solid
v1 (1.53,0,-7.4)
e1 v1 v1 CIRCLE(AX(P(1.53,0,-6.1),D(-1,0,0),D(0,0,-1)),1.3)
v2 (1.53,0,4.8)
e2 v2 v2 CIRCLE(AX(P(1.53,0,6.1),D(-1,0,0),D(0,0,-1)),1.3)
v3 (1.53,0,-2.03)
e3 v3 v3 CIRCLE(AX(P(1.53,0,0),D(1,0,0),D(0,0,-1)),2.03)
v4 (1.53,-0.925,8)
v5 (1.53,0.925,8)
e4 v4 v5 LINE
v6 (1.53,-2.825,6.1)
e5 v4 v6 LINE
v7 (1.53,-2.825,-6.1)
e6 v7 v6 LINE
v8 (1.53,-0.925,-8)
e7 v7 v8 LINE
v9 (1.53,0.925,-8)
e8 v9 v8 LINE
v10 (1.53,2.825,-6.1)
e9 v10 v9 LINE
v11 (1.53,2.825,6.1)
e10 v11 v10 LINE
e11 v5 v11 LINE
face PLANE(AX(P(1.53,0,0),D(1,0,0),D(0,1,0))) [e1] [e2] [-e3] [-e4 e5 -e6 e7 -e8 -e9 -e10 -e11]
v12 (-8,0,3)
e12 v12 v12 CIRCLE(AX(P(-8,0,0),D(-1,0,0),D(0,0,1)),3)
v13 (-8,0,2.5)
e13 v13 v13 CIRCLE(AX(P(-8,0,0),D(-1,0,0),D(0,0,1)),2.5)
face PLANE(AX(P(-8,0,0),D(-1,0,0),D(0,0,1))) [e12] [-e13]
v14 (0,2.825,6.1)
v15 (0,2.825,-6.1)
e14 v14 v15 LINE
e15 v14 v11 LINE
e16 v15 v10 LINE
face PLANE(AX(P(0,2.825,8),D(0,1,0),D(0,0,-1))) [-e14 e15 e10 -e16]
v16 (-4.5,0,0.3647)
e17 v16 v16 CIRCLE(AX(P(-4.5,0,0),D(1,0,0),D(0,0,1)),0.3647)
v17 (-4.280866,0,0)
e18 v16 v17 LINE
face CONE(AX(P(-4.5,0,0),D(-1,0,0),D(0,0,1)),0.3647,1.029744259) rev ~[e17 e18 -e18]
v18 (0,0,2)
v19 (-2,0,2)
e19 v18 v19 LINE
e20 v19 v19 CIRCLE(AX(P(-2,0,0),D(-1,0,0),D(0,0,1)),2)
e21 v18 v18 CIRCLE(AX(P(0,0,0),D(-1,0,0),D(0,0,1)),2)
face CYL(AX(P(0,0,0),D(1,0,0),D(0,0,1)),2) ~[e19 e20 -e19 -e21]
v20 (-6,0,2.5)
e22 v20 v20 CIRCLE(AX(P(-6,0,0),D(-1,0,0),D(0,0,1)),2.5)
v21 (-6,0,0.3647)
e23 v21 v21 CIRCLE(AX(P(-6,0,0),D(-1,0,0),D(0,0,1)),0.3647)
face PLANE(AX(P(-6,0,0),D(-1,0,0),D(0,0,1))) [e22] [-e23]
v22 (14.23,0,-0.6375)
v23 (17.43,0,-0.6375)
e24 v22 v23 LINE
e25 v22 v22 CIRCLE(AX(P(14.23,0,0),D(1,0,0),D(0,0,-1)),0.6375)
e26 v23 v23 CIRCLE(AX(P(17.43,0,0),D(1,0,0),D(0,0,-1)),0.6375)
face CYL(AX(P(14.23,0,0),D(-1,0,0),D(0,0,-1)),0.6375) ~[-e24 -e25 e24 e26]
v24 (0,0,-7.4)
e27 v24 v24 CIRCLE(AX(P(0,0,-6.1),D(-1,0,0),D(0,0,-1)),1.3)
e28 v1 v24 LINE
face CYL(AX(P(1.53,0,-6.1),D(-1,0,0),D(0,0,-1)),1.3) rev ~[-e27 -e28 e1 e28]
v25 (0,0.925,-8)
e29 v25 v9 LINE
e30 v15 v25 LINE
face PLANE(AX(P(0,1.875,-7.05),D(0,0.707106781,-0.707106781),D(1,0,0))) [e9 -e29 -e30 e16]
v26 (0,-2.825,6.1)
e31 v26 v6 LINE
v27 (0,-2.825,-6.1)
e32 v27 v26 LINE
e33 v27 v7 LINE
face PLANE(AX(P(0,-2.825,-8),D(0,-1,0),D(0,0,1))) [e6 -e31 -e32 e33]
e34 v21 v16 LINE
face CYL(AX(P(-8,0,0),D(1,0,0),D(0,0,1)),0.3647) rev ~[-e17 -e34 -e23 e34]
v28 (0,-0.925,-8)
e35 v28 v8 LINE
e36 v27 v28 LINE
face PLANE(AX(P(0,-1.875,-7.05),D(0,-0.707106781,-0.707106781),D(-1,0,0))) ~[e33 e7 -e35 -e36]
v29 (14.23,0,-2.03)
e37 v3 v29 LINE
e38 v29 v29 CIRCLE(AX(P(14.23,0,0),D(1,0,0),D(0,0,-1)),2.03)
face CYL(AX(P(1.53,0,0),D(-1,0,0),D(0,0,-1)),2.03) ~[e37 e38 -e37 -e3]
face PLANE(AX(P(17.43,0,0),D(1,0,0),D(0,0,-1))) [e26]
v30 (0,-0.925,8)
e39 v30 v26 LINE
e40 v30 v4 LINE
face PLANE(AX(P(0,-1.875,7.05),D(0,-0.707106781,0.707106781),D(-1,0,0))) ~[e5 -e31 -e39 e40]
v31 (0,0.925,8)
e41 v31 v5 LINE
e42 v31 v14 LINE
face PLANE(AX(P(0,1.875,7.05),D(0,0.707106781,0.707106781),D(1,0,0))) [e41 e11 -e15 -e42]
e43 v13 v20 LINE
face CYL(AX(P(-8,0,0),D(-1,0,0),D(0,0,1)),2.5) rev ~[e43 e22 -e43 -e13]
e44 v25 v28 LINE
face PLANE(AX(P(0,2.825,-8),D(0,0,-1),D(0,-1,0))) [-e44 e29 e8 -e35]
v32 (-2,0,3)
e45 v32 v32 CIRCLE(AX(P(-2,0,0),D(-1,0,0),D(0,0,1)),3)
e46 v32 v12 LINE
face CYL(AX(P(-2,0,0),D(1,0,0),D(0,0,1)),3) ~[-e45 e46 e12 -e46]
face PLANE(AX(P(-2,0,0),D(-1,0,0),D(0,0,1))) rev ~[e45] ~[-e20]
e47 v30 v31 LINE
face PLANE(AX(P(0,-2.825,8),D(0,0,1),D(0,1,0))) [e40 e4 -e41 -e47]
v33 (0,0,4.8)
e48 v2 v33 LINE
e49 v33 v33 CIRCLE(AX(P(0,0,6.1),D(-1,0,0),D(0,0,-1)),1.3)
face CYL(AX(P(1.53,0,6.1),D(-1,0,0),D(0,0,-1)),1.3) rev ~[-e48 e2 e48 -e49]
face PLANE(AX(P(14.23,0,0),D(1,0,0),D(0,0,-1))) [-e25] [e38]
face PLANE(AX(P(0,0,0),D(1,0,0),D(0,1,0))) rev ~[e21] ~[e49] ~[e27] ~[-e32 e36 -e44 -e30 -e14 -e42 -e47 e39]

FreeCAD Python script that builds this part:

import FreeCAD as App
import Part
import Sketcher


def edges_at(feature, points):
    """Names of the edges that pass closest to the given points."""
    edges = feature.Shape.Edges
    near = lambda p: min(range(len(edges)), key=lambda i: edges[i].distToShape(Part.Vertex(*p))[0])
    return sorted({f"Edge{near(p) + 1}" for p in points})


def add_polygon(sketch, points):
    """Adds a closed chain of lines whose ends are joined by coincident constraints."""
    first, n = sketch.GeometryCount, len(points)
    for a, b in zip(points, points[1:] + points[:1]):
        sketch.addGeometry(Part.LineSegment(App.Vector(*a, 0), App.Vector(*b, 0)), False)
    for i in range(n):
        sketch.addConstraint(Sketcher.Constraint("Coincident", first + i, 2, first + (i + 1) % n, 1))

doc = App.newDocument("Part")
body = doc.addObject("PartDesign::Body", "Body")

sketch1 = body.newObject("Sketcher::SketchObject", "Sketch")
sketch1.AttachmentSupport = (doc.getObject("YZ_Plane"), [""])
sketch1.MapMode = "FlatFace"
add_polygon(sketch1, [(3, 8), (-3, 8), (-3, -8), (3, -8)])
sketch1.addConstraint([
    Sketcher.Constraint("Horizontal", 0),
    Sketcher.Constraint("Vertical", 1),
    Sketcher.Constraint("Horizontal", 2),
    Sketcher.Constraint("Vertical", 3),
    Sketcher.Constraint("Symmetric", 0, 2, 2, 2, -1, 1),
    Sketcher.Constraint("DistanceY", 1, 2, 1, 1, 16.0),
    Sketcher.Constraint("DistanceX", 0, 2, 0, 1, 5.65),
])
pad1 = body.newObject("PartDesign::Pad", "Pad")
pad1.Profile = sketch1
pad1.Length = 1.53

sketch2 = body.newObject("Sketcher::SketchObject", "Sketch001")
sketch2.AttachmentSupport = (doc.getObject("YZ_Plane"), [""])
sketch2.MapMode = "FlatFace"
sketch2.AttachmentOffset = App.Placement(App.Vector(0, 0, 1.53), App.Rotation())
sketch2.addGeometry([
    Part.Circle(App.Vector(0, -6.1, 0), App.Vector(0, 0, 1), 1.3),
    Part.Circle(App.Vector(0, 6.1, 0), App.Vector(0, 0, 1), 1.3),
], False)
sketch2.addConstraint([
    Sketcher.Constraint("Equal", 0, 1),
    Sketcher.Constraint("Symmetric", 0, 3, 1, 3, -1, 1),
    Sketcher.Constraint("PointOnObject", 0, 3, -2),
    Sketcher.Constraint("Diameter", 0, 2.6),
    Sketcher.Constraint("DistanceY", 0, 3, -1, 1, 6.1),
])
doc.recompute()
hole = body.newObject("PartDesign::Hole", "Hole")
hole.Profile = sketch2
hole.ThreadType = "None"
hole.Diameter = 2.6
hole.DepthType = "ThroughAll"
doc.recompute()

chamfer = body.newObject("PartDesign::Chamfer", "Chamfer")
chamfer.Base = (hole, edges_at(hole, [
    (0.765, 2.825, 8),
    (0.765, 2.825, -8),
    (0.765, -2.825, 8),
    (0.765, -2.825, -8),
]))
chamfer.Size = 1.9

sketch3 = body.newObject("Sketcher::SketchObject", "Sketch002")
sketch3.AttachmentSupport = (doc.getObject("YZ_Plane"), [""])
sketch3.MapMode = "FlatFace"
sketch3.AttachmentOffset = App.Placement(App.Vector(0, 0, 1.53), App.Rotation())
sketch3.addGeometry(Part.Circle(App.Vector(0, 0, 0), App.Vector(0, 0, 1), 2), False)
sketch3.addConstraint([
    Sketcher.Constraint("Coincident", 0, 3, -1, 1),
    Sketcher.Constraint("Diameter", 0, 4.06),
])
pad2 = body.newObject("PartDesign::Pad", "Pad001")
pad2.Profile = sketch3
pad2.Length = 12.7

sketch4 = body.newObject("Sketcher::SketchObject", "Sketch003")
sketch4.AttachmentSupport = (doc.getObject("YZ_Plane"), [""])
sketch4.MapMode = "FlatFace"
sketch4.AttachmentOffset = App.Placement(App.Vector(0, 0, 14.23), App.Rotation())
sketch4.addGeometry(Part.Circle(App.Vector(0, 0, 0), App.Vector(0, 0, 1), 0.6), False)
sketch4.addConstraint([
    Sketcher.Constraint("Coincident", 0, 3, -1, 1),
    Sketcher.Constraint("Diameter", 0, 1.275),
])
pad3 = body.newObject("PartDesign::Pad", "Pad002")
pad3.Profile = sketch4
pad3.Length = 3.2

sketch5 = body.newObject("Sketcher::SketchObject", "Sketch004")
sketch5.AttachmentSupport = (doc.getObject("YZ_Plane"), [""])
sketch5.MapMode = "FlatFace"
sketch5.addGeometry(Part.Circle(App.Vector(0, 0, 0), App.Vector(0, 0, 1), 2), False)
sketch5.addConstraint([
    Sketcher.Constraint("Coincident", 0, 3, -1, 1),
    Sketcher.Constraint("Diameter", 0, 4.0),
])
pad4 = body.newObject("PartDesign::Pad", "Pad003")
pad4.Profile = sketch5
pad4.Length = 2
pad4.Reversed = True

sketch6 = body.newObject("Sketcher::SketchObject", "Sketch005")
sketch6.AttachmentSupport = (doc.getObject("YZ_Plane"), [""])
sketch6.MapMode = "FlatFace"
sketch6.AttachmentOffset = App.Placement(App.Vector(0, 0, -2), App.Rotation())
sketch6.addGeometry(Part.Circle(App.Vector(0, 0, 0), App.Vector(0, 0, 1), 3), False)
sketch6.addConstraint([
    Sketcher.Constraint("Coincident", 0, 3, -1, 1),
    Sketcher.Constraint("Diameter", 0, 6.0),
])
pad5 = body.newObject("PartDesign::Pad", "Pad004")
pad5.Profile = sketch6
pad5.Length = 6
pad5.Reversed = True

sketch7 = body.newObject("Sketcher::SketchObject", "Sketch006")
sketch7.AttachmentSupport = (doc.getObject("YZ_Plane"), [""])
sketch7.MapMode = "FlatFace"
sketch7.AttachmentOffset = App.Placement(App.Vector(0, 0, -8), App.Rotation())
sketch7.addGeometry(Part.Circle(App.Vector(0, 0, 0), App.Vector(0, 0, 1), 0.36), False)
sketch7.addConstraint([
    Sketcher.Constraint("Coincident", 0, 3, -1, 1),
    Sketcher.Constraint("Diameter", 0, 0.7294),
])
doc.recompute()
hole2 = body.newObject("PartDesign::Hole", "Hole001")
hole2.Profile = sketch7
hole2.ThreadType = "None"
hole2.Diameter = 0.7294
hole2.DepthType = "Dimension"
hole2.Depth = 3.5
hole2.DrillPoint = "Angled"
hole2.DrillPointAngle = 118
hole2.Reversed = True

sketch8 = body.newObject("Sketcher::SketchObject", "Sketch007")
sketch8.AttachmentSupport = (doc.getObject("YZ_Plane"), [""])
sketch8.MapMode = "FlatFace"
sketch8.AttachmentOffset = App.Placement(App.Vector(0, 0, -8), App.Rotation())
sketch8.addGeometry([
    Part.Circle(App.Vector(0, 0, 0), App.Vector(0, 0, 1), 2.5),
    Part.Circle(App.Vector(0, 0, 0), App.Vector(0, 0, 1), 0.36),
], False)
sketch8.addConstraint([
    Sketcher.Constraint("Coincident", 0, 3, -1, 1),
    Sketcher.Constraint("Coincident", 1, 3, -1, 1),
    Sketcher.Constraint("Diameter", 0, 5.0),
    Sketcher.Constraint("Diameter", 1, 0.7294),
])
pocket1 = body.newObject("PartDesign::Pocket", "Pocket")
pocket1.Profile = sketch8
pocket1.Length = 2
pocket1.Reversed = True

doc.recompute()
